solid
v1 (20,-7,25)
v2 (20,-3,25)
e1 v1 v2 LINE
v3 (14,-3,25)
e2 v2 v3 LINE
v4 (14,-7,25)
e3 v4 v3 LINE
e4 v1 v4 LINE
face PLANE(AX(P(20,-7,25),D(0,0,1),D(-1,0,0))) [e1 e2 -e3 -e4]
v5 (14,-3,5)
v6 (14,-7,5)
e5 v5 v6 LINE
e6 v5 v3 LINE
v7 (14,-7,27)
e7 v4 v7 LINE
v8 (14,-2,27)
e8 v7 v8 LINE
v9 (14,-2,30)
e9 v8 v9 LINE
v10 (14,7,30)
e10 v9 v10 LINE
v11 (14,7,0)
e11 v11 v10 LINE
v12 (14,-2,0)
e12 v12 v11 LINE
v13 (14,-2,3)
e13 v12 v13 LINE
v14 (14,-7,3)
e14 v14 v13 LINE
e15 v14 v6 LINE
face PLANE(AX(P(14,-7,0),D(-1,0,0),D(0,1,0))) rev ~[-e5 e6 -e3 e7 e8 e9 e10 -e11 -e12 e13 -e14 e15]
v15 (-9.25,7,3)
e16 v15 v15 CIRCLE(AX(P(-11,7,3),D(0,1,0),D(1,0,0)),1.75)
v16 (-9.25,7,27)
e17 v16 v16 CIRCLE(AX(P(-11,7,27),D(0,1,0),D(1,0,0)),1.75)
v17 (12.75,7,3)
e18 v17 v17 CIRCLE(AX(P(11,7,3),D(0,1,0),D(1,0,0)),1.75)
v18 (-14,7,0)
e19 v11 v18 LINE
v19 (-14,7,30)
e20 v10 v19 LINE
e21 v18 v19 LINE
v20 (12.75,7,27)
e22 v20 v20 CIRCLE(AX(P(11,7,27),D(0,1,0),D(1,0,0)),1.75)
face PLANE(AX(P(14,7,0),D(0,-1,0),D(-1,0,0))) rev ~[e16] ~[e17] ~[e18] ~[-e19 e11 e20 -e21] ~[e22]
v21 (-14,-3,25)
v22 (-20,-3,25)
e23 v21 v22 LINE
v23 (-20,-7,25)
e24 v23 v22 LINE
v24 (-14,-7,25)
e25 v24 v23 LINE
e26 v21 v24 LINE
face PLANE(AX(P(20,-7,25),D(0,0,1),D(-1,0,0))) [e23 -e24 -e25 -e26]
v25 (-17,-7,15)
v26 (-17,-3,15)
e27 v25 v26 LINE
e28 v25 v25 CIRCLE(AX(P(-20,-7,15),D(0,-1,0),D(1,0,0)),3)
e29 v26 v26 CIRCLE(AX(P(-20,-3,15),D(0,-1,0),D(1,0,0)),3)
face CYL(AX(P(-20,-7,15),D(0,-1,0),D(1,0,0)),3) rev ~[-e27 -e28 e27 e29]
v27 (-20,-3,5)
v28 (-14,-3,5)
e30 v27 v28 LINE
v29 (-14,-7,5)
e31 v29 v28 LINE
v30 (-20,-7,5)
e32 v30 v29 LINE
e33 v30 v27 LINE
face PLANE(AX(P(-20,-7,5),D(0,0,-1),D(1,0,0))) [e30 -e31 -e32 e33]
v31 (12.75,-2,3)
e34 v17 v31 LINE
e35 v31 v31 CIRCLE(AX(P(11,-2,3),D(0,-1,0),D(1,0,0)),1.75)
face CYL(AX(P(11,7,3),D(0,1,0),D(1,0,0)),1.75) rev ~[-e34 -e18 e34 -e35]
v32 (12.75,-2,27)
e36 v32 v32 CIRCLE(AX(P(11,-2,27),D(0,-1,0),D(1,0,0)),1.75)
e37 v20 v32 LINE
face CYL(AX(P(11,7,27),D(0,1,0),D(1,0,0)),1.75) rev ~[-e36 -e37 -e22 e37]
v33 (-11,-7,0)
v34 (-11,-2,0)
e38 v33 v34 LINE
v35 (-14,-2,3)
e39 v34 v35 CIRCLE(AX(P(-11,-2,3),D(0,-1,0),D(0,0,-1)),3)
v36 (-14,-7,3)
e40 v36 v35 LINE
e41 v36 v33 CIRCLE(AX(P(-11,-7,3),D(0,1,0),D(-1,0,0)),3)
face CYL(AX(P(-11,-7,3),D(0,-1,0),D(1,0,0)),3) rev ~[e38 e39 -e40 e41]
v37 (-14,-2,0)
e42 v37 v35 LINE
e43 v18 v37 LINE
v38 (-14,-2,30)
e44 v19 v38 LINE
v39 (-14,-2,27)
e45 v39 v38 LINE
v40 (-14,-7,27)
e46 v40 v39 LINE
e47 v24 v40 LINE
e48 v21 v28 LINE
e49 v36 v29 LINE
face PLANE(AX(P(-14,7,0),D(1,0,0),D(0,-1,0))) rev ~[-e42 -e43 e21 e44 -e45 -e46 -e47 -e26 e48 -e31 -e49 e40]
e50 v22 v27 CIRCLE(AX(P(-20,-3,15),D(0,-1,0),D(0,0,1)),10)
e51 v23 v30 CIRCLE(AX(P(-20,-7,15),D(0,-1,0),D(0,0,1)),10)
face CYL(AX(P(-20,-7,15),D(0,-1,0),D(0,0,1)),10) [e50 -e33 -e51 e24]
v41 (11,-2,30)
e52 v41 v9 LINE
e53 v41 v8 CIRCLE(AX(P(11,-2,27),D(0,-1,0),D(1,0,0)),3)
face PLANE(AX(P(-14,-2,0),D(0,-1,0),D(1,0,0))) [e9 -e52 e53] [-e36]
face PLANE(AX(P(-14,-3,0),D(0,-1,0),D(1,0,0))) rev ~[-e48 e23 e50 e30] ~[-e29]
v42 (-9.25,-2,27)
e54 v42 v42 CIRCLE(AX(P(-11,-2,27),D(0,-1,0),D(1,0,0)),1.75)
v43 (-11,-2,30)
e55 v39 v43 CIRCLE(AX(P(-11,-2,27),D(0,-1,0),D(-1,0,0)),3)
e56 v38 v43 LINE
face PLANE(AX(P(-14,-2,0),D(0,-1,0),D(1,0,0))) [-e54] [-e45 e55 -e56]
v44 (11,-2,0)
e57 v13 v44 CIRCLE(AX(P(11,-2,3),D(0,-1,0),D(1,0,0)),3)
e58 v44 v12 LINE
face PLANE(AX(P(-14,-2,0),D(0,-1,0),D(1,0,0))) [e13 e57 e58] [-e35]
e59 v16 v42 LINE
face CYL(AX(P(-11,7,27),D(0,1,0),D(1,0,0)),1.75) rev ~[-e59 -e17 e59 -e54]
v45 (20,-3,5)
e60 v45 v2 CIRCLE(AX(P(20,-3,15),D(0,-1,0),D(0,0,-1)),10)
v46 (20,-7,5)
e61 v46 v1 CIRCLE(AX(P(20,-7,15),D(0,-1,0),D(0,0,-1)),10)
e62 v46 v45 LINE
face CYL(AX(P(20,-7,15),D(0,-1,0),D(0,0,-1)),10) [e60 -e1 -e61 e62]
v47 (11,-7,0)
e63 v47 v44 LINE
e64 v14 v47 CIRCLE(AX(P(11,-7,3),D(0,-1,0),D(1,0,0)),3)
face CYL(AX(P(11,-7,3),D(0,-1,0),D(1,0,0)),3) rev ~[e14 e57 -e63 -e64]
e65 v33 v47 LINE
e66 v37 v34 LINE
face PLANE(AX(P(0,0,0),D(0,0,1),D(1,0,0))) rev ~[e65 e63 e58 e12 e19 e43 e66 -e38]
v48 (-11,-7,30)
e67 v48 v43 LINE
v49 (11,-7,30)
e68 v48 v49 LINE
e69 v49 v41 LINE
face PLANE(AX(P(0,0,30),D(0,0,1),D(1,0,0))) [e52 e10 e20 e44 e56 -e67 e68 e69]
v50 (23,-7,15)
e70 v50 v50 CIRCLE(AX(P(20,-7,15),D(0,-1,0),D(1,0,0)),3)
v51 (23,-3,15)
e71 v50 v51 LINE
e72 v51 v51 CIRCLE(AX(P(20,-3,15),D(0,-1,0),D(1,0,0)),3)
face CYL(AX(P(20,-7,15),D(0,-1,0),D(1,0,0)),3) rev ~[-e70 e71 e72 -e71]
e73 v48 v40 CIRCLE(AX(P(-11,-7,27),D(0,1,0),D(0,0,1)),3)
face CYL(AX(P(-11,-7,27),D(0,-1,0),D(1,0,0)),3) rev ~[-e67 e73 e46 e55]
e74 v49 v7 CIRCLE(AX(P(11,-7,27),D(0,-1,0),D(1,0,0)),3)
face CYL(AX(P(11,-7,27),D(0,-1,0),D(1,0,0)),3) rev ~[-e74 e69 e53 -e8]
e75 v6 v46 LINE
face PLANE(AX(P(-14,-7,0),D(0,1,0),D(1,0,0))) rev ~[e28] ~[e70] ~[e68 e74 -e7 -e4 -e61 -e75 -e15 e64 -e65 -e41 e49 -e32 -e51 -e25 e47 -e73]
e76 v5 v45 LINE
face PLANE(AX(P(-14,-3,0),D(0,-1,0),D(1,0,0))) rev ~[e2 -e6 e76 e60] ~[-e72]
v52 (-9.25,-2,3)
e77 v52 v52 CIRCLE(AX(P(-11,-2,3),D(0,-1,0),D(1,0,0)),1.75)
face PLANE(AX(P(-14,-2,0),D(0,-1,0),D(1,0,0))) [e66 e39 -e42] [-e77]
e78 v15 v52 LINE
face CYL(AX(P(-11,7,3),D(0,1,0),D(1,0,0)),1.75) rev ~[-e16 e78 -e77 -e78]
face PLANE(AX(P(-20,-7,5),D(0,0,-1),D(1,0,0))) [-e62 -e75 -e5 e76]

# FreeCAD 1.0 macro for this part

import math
import FreeCAD as App
import Part
import Sketcher
from FreeCAD import Vector
Q = App.Units.Quantity


def add_polygon(sketch, points):
    """Adds a closed chain of lines whose ends are joined by coincident constraints."""
    first, n = sketch.GeometryCount, len(points)
    for a, b in zip(points, points[1:] + points[:1]):
        sketch.addGeometry(Part.LineSegment(App.Vector(*a, 0), App.Vector(*b, 0)), False)
    for i in range(n):
        sketch.addConstraint(Sketcher.Constraint("Coincident", first + i, 2, first + (i + 1) % n, 1))

doc = App.newDocument("Part")
params = doc.addObject("Spreadsheet::Sheet", "Params")
for row, (alias, value) in enumerate([
    ("sketch1_width", "28 mm"),
    ("sketch1_height", "14 mm"),
    ("pad1_length", "30 mm"),
    ("sketch2_diameter", "6 mm"),
    ("sketch2_radius", "10 mm"),
    ("sketch2_width", "40 mm"),
    ("pad2_length", "4 mm"),
    ("sketch3_diameter", "3.5 mm"),
    ("sketch4_radius", "3 mm"),
    ("sketch4_diameter", "3.5 mm"),
    ("pocket2_length", "5 mm"),
], start=1):
    params.set(f"A{row}", alias)
    params.set(f"B{row}", "=" + value)
    params.setAlias(f"B{row}", alias)

body = doc.addObject("PartDesign::Body", "Body")

# Sketch on XY plane
sketch1 = doc.addObject("Sketcher::SketchObject", "Sketch")
body.addObject(sketch1)
sketch1.AttachmentSupport = (doc.XY_Plane, [""])
sketch1.MapMode = "FlatFace"
add_polygon(sketch1, [(-14, 7), (-14, -7), (14, -7), (14, 7)])  # lines 0-3
sketch1.addConstraint(Sketcher.Constraint("Vertical", 0))
sketch1.addConstraint(Sketcher.Constraint("Horizontal", 1))
sketch1.addConstraint(Sketcher.Constraint("Vertical", 2))
sketch1.addConstraint(Sketcher.Constraint("Horizontal", 3))
sketch1.addConstraint(Sketcher.Constraint("Symmetric", 0, 2, 2, 2, -1, 1))
sketch1.addConstraint(Sketcher.Constraint("DistanceX", 1, 1, 1, 2, Q("28 mm")))
sketch1.addConstraint(Sketcher.Constraint("DistanceY", 0, 2, 0, 1, Q("14 mm")))
sketch1.setExpression("Constraints[9]", "Params.sketch1_width")
sketch1.setExpression("Constraints[10]", "Params.sketch1_height")
pad1 = doc.addObject("PartDesign::Pad", "Pad")
body.addObject(pad1)
pad1.Profile = sketch1
pad1.setExpression("Length", "Params.pad1_length")

# Sketch on XZ plane
sketch2 = doc.addObject("Sketcher::SketchObject", "Sketch001")
body.addObject(sketch2)
sketch2.AttachmentSupport = (doc.XZ_Plane, [""])
sketch2.MapMode = "FlatFace"
sketch2.AttachmentOffset = App.Placement(Vector(0, 0, 7), App.Rotation())
sketch2.addGeometry(Part.ArcOfCircle(Part.Circle(Vector(-20, 15, 0), Vector(0, 0, 1), 10), math.radians(90), math.radians(270)), False)
sketch2.addGeometry(Part.LineSegment(Vector(-20, 5, 0), Vector(20, 5, 0)), False)
sketch2.addGeometry(Part.ArcOfCircle(Part.Circle(Vector(20, 15, 0), Vector(0, 0, 1), 10), math.radians(-90), math.radians(90)), False)
sketch2.addGeometry(Part.LineSegment(Vector(20, 25, 0), Vector(-20, 25, 0)), False)
sketch2.addGeometry(Part.Circle(Vector(-20, 15, 0), Vector(0, 0, 1), 3), False)
sketch2.addGeometry(Part.Circle(Vector(20, 15, 0), Vector(0, 0, 1), 3), False)
sketch2.addConstraint(Sketcher.Constraint("Tangent", 0, 2, 1, 1))
sketch2.addConstraint(Sketcher.Constraint("Tangent", 1, 2, 2, 1))
sketch2.addConstraint(Sketcher.Constraint("Tangent", 2, 2, 3, 1))
sketch2.addConstraint(Sketcher.Constraint("Tangent", 3, 2, 0, 1))
sketch2.addConstraint(Sketcher.Constraint("Horizontal", 1))
sketch2.addConstraint(Sketcher.Constraint("Horizontal", 3))
sketch2.addConstraint(Sketcher.Constraint("Coincident", 4, 3, 0, 3))
sketch2.addConstraint(Sketcher.Constraint("Coincident", 5, 3, 2, 3))
sketch2.addConstraint(Sketcher.Constraint("Equal", 4, 5))
sketch2.addConstraint(Sketcher.Constraint("Diameter", 4, Q("6 mm")))
sketch2.addConstraint(Sketcher.Constraint("Radius", 0, Q("10 mm")))
sketch2.addConstraint(Sketcher.Constraint("DistanceX", 1, 1, 1, 2, Q("40 mm")))
sketch2.addConstraint(Sketcher.Constraint("DistanceY", -1, 1, 0, 3, Q("15 mm")))
sketch2.addConstraint(Sketcher.Constraint("DistanceX", 0, 3, -1, 1, Q("20 mm")))
sketch2.setExpression("Constraints[9]", "Params.sketch2_diameter")
sketch2.setExpression("Constraints[10]", "Params.sketch2_radius")
sketch2.setExpression("Constraints[11]", "Params.sketch2_width")
pad2 = doc.addObject("PartDesign::Pad", "Pad001")
body.addObject(pad2)
pad2.Profile = sketch2
pad2.setExpression("Length", "Params.pad2_length")
pad2.Reversed = True

# Sketch on XZ plane
sketch3 = doc.addObject("Sketcher::SketchObject", "Sketch002")
body.addObject(sketch3)
sketch3.AttachmentSupport = (doc.XZ_Plane, [""])
sketch3.MapMode = "FlatFace"
sketch3.AttachmentOffset = App.Placement(Vector(0, 0, -7), App.Rotation())
sketch3.addGeometry(Part.Circle(Vector(11, 27, 0), Vector(0, 0, 1), 1.8), False)
sketch3.addGeometry(Part.Circle(Vector(-11, 27, 0), Vector(0, 0, 1), 1.8), False)
sketch3.addGeometry(Part.Circle(Vector(-11, 3, 0), Vector(0, 0, 1), 1.8), False)
sketch3.addGeometry(Part.Circle(Vector(11, 3, 0), Vector(0, 0, 1), 1.8), False)
sketch3.addConstraint(Sketcher.Constraint("Equal", 0, 1))
sketch3.addConstraint(Sketcher.Constraint("Equal", 1, 2))
sketch3.addConstraint(Sketcher.Constraint("Equal", 2, 3))
sketch3.addConstraint(Sketcher.Constraint("Symmetric", 0, 3, 1, 3, -2))
sketch3.addConstraint(Sketcher.Constraint("Symmetric", 2, 3, 3, 3, -2))
sketch3.addConstraint(Sketcher.Constraint("Vertical", 1, 3, 2, 3))
sketch3.addConstraint(Sketcher.Constraint("Diameter", 0, Q("3.5 mm")))
sketch3.addConstraint(Sketcher.Constraint("DistanceX", 1, 3, 0, 3, Q("22 mm")))
sketch3.addConstraint(Sketcher.Constraint("DistanceY", 2, 3, 1, 3, Q("24 mm")))
sketch3.addConstraint(Sketcher.Constraint("DistanceY", -1, 1, 0, 3, Q("27 mm")))
sketch3.setExpression("Constraints[6]", "Params.sketch3_diameter")
pocket1 = doc.addObject("PartDesign::Pocket", "Pocket")
body.addObject(pocket1)
pocket1.Profile = sketch3
pocket1.Type = "ThroughAll"
pocket1.Reversed = True

# Sketch on XZ plane
sketch4 = doc.addObject("Sketcher::SketchObject", "Sketch003")
body.addObject(sketch4)
sketch4.AttachmentSupport = (doc.XZ_Plane, [""])
sketch4.MapMode = "FlatFace"
sketch4.AttachmentOffset = App.Placement(Vector(0, 0, 7), App.Rotation())
sketch4.addGeometry(Part.ArcOfCircle(Part.Circle(Vector(11, 27, 0), Vector(0, 0, 1), 3), math.radians(90), math.radians(360)), False)
sketch4.addGeometry(Part.LineSegment(Vector(14, 27, 0), Vector(14, 30, 0)), False)
sketch4.addGeometry(Part.LineSegment(Vector(14, 30, 0), Vector(11, 30, 0)), False)
sketch4.addGeometry(Part.Circle(Vector(11, 27, 0), Vector(0, 0, 1), 1.8), False)
sketch4.addGeometry(Part.LineSegment(Vector(-11, 30, 0), Vector(-14, 30, 0)), False)
sketch4.addGeometry(Part.LineSegment(Vector(-14, 30, 0), Vector(-14, 27, 0)), False)
sketch4.addGeometry(Part.ArcOfCircle(Part.Circle(Vector(-11, 27, 0), Vector(0, 0, 1), 3), math.radians(180), math.radians(450)), False)
sketch4.addGeometry(Part.Circle(Vector(-11, 27, 0), Vector(0, 0, 1), 1.8), False)
sketch4.addGeometry(Part.ArcOfCircle(Part.Circle(Vector(11, 3, 0), Vector(0, 0, 1), 3), math.radians(0), math.radians(270)), False)
sketch4.addGeometry(Part.LineSegment(Vector(11, 0, 0), Vector(14, 0, 0)), False)
sketch4.addGeometry(Part.LineSegment(Vector(14, 0, 0), Vector(14, 3, 0)), False)
sketch4.addGeometry(Part.Circle(Vector(11, 3, 0), Vector(0, 0, 1), 1.8), False)
sketch4.addGeometry(Part.LineSegment(Vector(-14, 0, 0), Vector(-11, 0, 0)), False)
sketch4.addGeometry(Part.ArcOfCircle(Part.Circle(Vector(-11, 3, 0), Vector(0, 0, 1), 3), math.radians(-90), math.radians(180)), False)
sketch4.addGeometry(Part.LineSegment(Vector(-14, 3, 0), Vector(-14, 0, 0)), False)
sketch4.addGeometry(Part.Circle(Vector(-11, 3, 0), Vector(0, 0, 1), 1.8), False)
sketch4.addConstraint(Sketcher.Constraint("Tangent", 0, 2, 1, 1))
sketch4.addConstraint(Sketcher.Constraint("Coincident", 1, 2, 2, 1))
sketch4.addConstraint(Sketcher.Constraint("Tangent", 2, 2, 0, 1))
sketch4.addConstraint(Sketcher.Constraint("Coincident", 4, 2, 5, 1))
sketch4.addConstraint(Sketcher.Constraint("Tangent", 5, 2, 6, 1))
sketch4.addConstraint(Sketcher.Constraint("Tangent", 6, 2, 4, 1))
sketch4.addConstraint(Sketcher.Constraint("Tangent", 8, 2, 9, 1))
sketch4.addConstraint(Sketcher.Constraint("Coincident", 9, 2, 10, 1))
sketch4.addConstraint(Sketcher.Constraint("Tangent", 10, 2, 8, 1))
sketch4.addConstraint(Sketcher.Constraint("Tangent", 12, 2, 13, 1))
sketch4.addConstraint(Sketcher.Constraint("Tangent", 13, 2, 14, 1))
sketch4.addConstraint(Sketcher.Constraint("Coincident", 14, 2, 12, 1))
sketch4.addConstraint(Sketcher.Constraint("Vertical", 1))
sketch4.addConstraint(Sketcher.Constraint("Horizontal", 2))
sketch4.addConstraint(Sketcher.Constraint("Horizontal", 4))
sketch4.addConstraint(Sketcher.Constraint("Vertical", 5))
sketch4.addConstraint(Sketcher.Constraint("Horizontal", 9))
sketch4.addConstraint(Sketcher.Constraint("Vertical", 10))
sketch4.addConstraint(Sketcher.Constraint("Horizontal", 12))
sketch4.addConstraint(Sketcher.Constraint("Vertical", 14))
sketch4.addConstraint(Sketcher.Constraint("Coincident", 3, 3, 0, 3))
sketch4.addConstraint(Sketcher.Constraint("Coincident", 7, 3, 6, 3))
sketch4.addConstraint(Sketcher.Constraint("Coincident", 11, 3, 8, 3))
sketch4.addConstraint(Sketcher.Constraint("Coincident", 15, 3, 13, 3))
sketch4.addConstraint(Sketcher.Constraint("Equal", 0, 6))
sketch4.addConstraint(Sketcher.Constraint("Equal", 3, 7))
sketch4.addConstraint(Sketcher.Constraint("Equal", 6, 8))
sketch4.addConstraint(Sketcher.Constraint("Equal", 7, 11))
sketch4.addConstraint(Sketcher.Constraint("Equal", 8, 13))
sketch4.addConstraint(Sketcher.Constraint("Equal", 11, 15))
sketch4.addConstraint(Sketcher.Constraint("Symmetric", 8, 2, 12, 2, -1, 1))
sketch4.addConstraint(Sketcher.Constraint("Symmetric", 0, 3, 6, 3, -2))
sketch4.addConstraint(Sketcher.Constraint("PointOnObject", 8, 2, -1))
sketch4.addConstraint(Sketcher.Constraint("Vertical", 3, 3, 8, 3))
sketch4.addConstraint(Sketcher.Constraint("Radius", 0, Q("3 mm")))
sketch4.addConstraint(Sketcher.Constraint("Diameter", 3, Q("3.5 mm")))
sketch4.addConstraint(Sketcher.Constraint("DistanceX", -1, 1, 0, 3, Q("11 mm")))
sketch4.addConstraint(Sketcher.Constraint("DistanceY", -1, 1, 0, 3, Q("27 mm")))
sketch4.setExpression("Constraints[34]", "Params.sketch4_radius")
sketch4.setExpression("Constraints[35]", "Params.sketch4_diameter")
pocket2 = doc.addObject("PartDesign::Pocket", "Pocket001")
body.addObject(pocket2)
pocket2.Profile = sketch4
pocket2.setExpression("Length", "Params.pocket2_length")

doc.recompute()
